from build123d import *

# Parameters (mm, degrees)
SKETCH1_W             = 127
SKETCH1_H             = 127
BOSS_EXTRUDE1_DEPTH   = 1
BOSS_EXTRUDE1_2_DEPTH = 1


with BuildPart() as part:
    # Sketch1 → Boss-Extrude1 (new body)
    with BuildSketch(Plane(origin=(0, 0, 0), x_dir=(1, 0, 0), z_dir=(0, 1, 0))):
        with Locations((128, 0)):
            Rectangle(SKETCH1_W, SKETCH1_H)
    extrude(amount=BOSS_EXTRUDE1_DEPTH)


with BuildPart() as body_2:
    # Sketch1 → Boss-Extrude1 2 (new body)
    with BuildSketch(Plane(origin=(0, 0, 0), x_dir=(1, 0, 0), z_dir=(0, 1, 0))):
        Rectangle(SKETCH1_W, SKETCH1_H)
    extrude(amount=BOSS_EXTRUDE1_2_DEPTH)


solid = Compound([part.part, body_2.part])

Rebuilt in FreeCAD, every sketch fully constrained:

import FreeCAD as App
import Part
import Sketcher
from FreeCAD import Vector

doc = App.newDocument("Part")
body = doc.addObject("PartDesign::Body", "Body")

# Sketch on XZ plane
sketch1 = body.newObject("Sketcher::SketchObject", "Sketch")
sketch1.AttachmentSupport = (doc.getObject("XZ_Plane"), [""])
sketch1.MapMode = "FlatFace"
sketch1.addGeometry([
    Part.LineSegment(Vector(64, -64, 0), Vector(64, 64, 0)),
    Part.LineSegment(Vector(64, 64, 0), Vector(192, 64, 0)),
    Part.LineSegment(Vector(192, 64, 0), Vector(192, -64, 0)),
    Part.LineSegment(Vector(192, -64, 0), Vector(64, -64, 0)),
], False)
sketch1.addConstraint([
    Sketcher.Constraint("Coincident", 0, 2, 1, 1),
    Sketcher.Constraint("Coincident", 1, 2, 2, 1),
    Sketcher.Constraint("Coincident", 2, 2, 3, 1),
    Sketcher.Constraint("Coincident", 3, 2, 0, 1),
    Sketcher.Constraint("Vertical", 0),
    Sketcher.Constraint("Horizontal", 1),
    Sketcher.Constraint("Vertical", 2),
    Sketcher.Constraint("Horizontal", 3),
    Sketcher.Constraint("Equal", 3, 0),
    Sketcher.Constraint("DistanceX", 1, 1, 1, 2, 127.0),
    Sketcher.Constraint("DistanceX", -1, 1, 0, 2, 64.5),
    Sketcher.Constraint("DistanceY", -1, 1, 0, 2, 63.5),
])
pad1 = body.newObject("PartDesign::Pad", "Pad")
pad1.Profile = sketch1
pad1.Length = 1
pad1.Reversed = True
body2 = doc.addObject("PartDesign::Body", "Body001")

# Sketch on XZ plane
sketch2 = body2.newObject("Sketcher::SketchObject", "Sketch001")
sketch2.AttachmentSupport = (doc.getObject("XZ_Plane001"), [""])
sketch2.MapMode = "FlatFace"
sketch2.addGeometry([
    Part.LineSegment(Vector(-64, -64, 0), Vector(-64, 64, 0)),
    Part.LineSegment(Vector(-64, 64, 0), Vector(64, 64, 0)),
    Part.LineSegment(Vector(64, 64, 0), Vector(64, -64, 0)),
    Part.LineSegment(Vector(64, -64, 0), Vector(-64, -64, 0)),
], False)
sketch2.addConstraint([
    Sketcher.Constraint("Coincident", 0, 2, 1, 1),
    Sketcher.Constraint("Coincident", 1, 2, 2, 1),
    Sketcher.Constraint("Coincident", 2, 2, 3, 1),
    Sketcher.Constraint("Coincident", 3, 2, 0, 1),
    Sketcher.Constraint("Vertical", 0),
    Sketcher.Constraint("Horizontal", 1),
    Sketcher.Constraint("Vertical", 2),
    Sketcher.Constraint("Horizontal", 3),
    Sketcher.Constraint("Symmetric", 0, 2, 2, 2, -1, 1),
    Sketcher.Constraint("Equal", 3, 0),
    Sketcher.Constraint("DistanceX", 1, 1, 1, 2, 127.0),
])
pad2 = body2.newObject("PartDesign::Pad", "Pad001")
pad2.Profile = sketch2
pad2.Length = 1
pad2.Reversed = True

doc.recompute()
